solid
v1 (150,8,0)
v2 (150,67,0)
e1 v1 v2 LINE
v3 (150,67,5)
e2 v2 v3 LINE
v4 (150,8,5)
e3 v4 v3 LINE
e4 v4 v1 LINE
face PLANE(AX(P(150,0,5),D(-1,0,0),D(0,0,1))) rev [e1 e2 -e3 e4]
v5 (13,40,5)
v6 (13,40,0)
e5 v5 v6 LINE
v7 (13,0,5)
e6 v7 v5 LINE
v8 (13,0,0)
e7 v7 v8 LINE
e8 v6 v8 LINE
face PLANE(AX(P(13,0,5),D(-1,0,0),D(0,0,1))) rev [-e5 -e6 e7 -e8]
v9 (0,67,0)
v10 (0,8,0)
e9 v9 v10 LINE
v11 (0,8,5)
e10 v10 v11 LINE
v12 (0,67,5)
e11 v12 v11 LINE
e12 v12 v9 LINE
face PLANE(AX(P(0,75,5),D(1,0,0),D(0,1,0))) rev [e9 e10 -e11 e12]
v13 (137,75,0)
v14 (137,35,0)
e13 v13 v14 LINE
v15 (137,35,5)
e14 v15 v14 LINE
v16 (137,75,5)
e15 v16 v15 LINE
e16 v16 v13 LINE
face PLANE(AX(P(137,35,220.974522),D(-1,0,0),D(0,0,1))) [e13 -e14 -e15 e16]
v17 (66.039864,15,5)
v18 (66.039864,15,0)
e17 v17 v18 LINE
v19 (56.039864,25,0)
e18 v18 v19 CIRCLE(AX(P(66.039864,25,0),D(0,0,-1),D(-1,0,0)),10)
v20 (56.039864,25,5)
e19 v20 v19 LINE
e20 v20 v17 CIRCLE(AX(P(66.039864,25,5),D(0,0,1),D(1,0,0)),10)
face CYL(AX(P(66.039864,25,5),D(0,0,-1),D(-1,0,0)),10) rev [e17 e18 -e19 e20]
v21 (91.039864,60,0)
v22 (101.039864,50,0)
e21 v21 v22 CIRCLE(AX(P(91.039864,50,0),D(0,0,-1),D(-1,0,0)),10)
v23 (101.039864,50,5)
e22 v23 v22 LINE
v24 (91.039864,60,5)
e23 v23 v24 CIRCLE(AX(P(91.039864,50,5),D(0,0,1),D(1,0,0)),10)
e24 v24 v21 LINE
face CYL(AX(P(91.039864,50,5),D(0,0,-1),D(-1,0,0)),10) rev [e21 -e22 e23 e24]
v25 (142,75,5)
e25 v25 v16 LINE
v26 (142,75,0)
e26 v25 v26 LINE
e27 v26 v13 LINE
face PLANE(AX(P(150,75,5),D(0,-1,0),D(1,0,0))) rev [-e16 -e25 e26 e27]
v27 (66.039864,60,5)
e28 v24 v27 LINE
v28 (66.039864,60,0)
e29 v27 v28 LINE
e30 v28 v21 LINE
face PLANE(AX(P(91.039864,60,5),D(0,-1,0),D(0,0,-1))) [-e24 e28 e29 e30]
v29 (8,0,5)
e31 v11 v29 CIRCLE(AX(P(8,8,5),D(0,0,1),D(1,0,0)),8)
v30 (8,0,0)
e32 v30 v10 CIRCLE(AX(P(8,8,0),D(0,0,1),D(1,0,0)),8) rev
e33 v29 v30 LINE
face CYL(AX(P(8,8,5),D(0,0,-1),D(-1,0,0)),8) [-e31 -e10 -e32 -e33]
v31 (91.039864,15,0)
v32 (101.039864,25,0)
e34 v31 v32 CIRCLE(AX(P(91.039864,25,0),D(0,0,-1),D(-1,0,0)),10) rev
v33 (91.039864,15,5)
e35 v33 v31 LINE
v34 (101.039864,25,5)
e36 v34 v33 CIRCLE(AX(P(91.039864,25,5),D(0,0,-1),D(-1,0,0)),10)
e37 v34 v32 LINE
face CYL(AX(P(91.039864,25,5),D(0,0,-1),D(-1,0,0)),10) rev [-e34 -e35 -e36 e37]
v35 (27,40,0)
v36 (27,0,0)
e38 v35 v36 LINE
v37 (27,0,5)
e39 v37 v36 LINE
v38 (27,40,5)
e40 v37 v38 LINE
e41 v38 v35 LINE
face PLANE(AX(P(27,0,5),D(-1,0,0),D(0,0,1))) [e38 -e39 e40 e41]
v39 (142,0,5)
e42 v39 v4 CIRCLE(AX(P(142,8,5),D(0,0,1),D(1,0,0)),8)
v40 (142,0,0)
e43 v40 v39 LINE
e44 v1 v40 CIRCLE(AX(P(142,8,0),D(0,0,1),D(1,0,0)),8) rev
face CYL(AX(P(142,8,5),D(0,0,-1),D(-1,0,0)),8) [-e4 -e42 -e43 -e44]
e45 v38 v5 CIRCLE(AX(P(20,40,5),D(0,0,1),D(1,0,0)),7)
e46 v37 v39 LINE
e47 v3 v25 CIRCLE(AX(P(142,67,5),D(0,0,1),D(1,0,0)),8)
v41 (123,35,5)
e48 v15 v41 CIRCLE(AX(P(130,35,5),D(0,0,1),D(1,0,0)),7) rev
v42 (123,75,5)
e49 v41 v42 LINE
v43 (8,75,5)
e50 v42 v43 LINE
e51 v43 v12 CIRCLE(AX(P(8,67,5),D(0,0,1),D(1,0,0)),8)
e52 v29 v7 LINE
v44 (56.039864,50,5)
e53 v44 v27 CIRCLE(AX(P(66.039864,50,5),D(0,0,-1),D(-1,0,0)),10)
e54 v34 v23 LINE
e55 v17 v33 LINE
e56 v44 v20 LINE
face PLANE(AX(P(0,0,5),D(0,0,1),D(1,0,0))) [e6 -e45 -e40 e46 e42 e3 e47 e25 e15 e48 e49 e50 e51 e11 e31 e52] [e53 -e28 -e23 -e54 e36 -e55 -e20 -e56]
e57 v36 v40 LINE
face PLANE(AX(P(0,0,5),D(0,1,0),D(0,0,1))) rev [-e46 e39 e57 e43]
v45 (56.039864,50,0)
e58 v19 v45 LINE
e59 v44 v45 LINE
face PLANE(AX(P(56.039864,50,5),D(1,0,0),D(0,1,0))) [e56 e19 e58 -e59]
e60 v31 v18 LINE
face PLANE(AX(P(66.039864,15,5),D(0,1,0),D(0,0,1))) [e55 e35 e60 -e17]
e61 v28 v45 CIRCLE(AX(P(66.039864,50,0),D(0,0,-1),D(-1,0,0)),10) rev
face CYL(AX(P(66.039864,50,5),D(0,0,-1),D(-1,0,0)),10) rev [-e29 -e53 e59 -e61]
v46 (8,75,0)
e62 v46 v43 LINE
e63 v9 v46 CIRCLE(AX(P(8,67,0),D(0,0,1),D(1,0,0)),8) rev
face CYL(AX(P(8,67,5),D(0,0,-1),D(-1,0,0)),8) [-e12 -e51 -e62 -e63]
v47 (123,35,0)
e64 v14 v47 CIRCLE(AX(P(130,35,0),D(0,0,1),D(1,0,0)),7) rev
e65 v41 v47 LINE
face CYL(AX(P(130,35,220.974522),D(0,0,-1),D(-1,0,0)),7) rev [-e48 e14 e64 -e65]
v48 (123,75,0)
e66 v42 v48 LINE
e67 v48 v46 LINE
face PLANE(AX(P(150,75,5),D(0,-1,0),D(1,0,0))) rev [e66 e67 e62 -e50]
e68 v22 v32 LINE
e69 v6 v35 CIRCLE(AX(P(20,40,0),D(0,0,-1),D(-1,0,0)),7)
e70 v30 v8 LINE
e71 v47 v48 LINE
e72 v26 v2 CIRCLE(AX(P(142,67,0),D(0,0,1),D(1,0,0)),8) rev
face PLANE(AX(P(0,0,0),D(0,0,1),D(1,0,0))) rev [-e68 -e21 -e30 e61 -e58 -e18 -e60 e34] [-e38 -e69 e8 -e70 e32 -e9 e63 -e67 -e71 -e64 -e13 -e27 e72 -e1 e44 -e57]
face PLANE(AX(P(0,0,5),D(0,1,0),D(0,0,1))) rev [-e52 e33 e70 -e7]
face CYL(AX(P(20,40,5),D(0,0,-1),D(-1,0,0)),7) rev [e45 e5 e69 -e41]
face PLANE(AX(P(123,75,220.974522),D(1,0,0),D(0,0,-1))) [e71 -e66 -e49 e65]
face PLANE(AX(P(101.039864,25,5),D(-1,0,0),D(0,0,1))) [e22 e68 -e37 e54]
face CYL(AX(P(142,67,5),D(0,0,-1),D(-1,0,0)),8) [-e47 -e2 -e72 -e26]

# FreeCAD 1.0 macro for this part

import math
import FreeCAD as App
import Part
import Sketcher


def edges_at(feature, points):
    """Names of the edges that pass closest to the given points."""
    edges = feature.Shape.Edges
    near = lambda p: min(range(len(edges)), key=lambda i: edges[i].distToShape(Part.Vertex(*p))[0])
    return sorted({f"Edge{near(p) + 1}" for p in points})


def add_polygon(sketch, points):
    """Adds a closed chain of lines whose ends are joined by coincident constraints."""
    first, n = sketch.GeometryCount, len(points)
    for a, b in zip(points, points[1:] + points[:1]):
        sketch.addGeometry(Part.LineSegment(App.Vector(*a, 0), App.Vector(*b, 0)), False)
    for i in range(n):
        sketch.addConstraint(Sketcher.Constraint("Coincident", first + i, 2, first + (i + 1) % n, 1))

doc = App.newDocument("Part")
body = doc.addObject("PartDesign::Body", "Body")

sketch1 = body.newObject("Sketcher::SketchObject", "Sketch")
sketch1.AttachmentSupport = (doc.getObject("XY_Plane"), [""])
sketch1.MapMode = "FlatFace"
add_polygon(sketch1, [(0, 75), (0, 0), (150, 0), (150, 75)])
sketch1.addConstraint([
    Sketcher.Constraint("Vertical", 0),
    Sketcher.Constraint("Horizontal", 1),
    Sketcher.Constraint("Vertical", 2),
    Sketcher.Constraint("Horizontal", 3),
    Sketcher.Constraint("Coincident", 0, 2, -1, 1),
    Sketcher.Constraint("DistanceX", 1, 1, 1, 2, 150.0),
    Sketcher.Constraint("DistanceY", 0, 2, 0, 1, 75.0),
])
pad1 = body.newObject("PartDesign::Pad", "Pad")
pad1.Profile = sketch1
pad1.Length = 5

sketch2 = body.newObject("Sketcher::SketchObject", "Sketch001")
sketch2.AttachmentSupport = (doc.getObject("XY_Plane"), [""])
sketch2.MapMode = "FlatFace"
sketch2.addGeometry([
    Part.LineSegment(App.Vector(56.039864, 50, 0), App.Vector(56.039864, 25, 0)),
    Part.ArcOfCircle(Part.Circle(App.Vector(66.039864, 25, 0), App.Vector(0, 0, 1), 10), math.radians(180), math.radians(270)),
    Part.LineSegment(App.Vector(66.039864, 15, 0), App.Vector(91.039864, 15, 0)),
    Part.ArcOfCircle(Part.Circle(App.Vector(91.039864, 25, 0), App.Vector(0, 0, 1), 10), math.radians(-90), math.radians(0)),
    Part.LineSegment(App.Vector(101.039864, 25, 0), App.Vector(101.039864, 50, 0)),
    Part.ArcOfCircle(Part.Circle(App.Vector(91.039864, 50, 0), App.Vector(0, 0, 1), 10), math.radians(0), math.radians(90)),
    Part.LineSegment(App.Vector(91.039864, 60, 0), App.Vector(66.039864, 60, 0)),
    Part.ArcOfCircle(Part.Circle(App.Vector(66.039864, 50, 0), App.Vector(0, 0, 1), 10), math.radians(90), math.radians(180)),
    Part.LineSegment(App.Vector(13, 40, 0), App.Vector(13, 0, 0)),
    Part.ArcOfCircle(Part.Circle(App.Vector(20, 0, 0), App.Vector(0, 0, 1), 7), math.radians(180), math.radians(360)),
    Part.LineSegment(App.Vector(27, 0, 0), App.Vector(27, 40, 0)),
    Part.ArcOfCircle(Part.Circle(App.Vector(20, 40, 0), App.Vector(0, 0, 1), 7), math.radians(0), math.radians(180)),
], False)
sketch2.addConstraint([
    Sketcher.Constraint("Tangent", 0, 2, 1, 1),
    Sketcher.Constraint("Tangent", 1, 2, 2, 1),
    Sketcher.Constraint("Tangent", 2, 2, 3, 1),
    Sketcher.Constraint("Tangent", 3, 2, 4, 1),
    Sketcher.Constraint("Tangent", 4, 2, 5, 1),
    Sketcher.Constraint("Tangent", 5, 2, 6, 1),
    Sketcher.Constraint("Tangent", 6, 2, 7, 1),
    Sketcher.Constraint("Tangent", 7, 2, 0, 1),
    Sketcher.Constraint("Tangent", 8, 2, 9, 1),
    Sketcher.Constraint("Tangent", 9, 2, 10, 1),
    Sketcher.Constraint("Tangent", 10, 2, 11, 1),
    Sketcher.Constraint("Tangent", 11, 2, 8, 1),
    Sketcher.Constraint("Vertical", 0),
    Sketcher.Constraint("Horizontal", 2),
    Sketcher.Constraint("Vertical", 4),
    Sketcher.Constraint("Horizontal", 6),
    Sketcher.Constraint("Vertical", 8),
    Sketcher.Constraint("Vertical", 10),
    Sketcher.Constraint("Equal", 1, 3),
    Sketcher.Constraint("Equal", 3, 5),
    Sketcher.Constraint("Equal", 5, 7),
    Sketcher.Constraint("PointOnObject", 9, 3, -1),
    Sketcher.Constraint("Equal", 6, 0),
    Sketcher.Constraint("Radius", 1, 10.0),
    Sketcher.Constraint("Radius", 9, 7.0),
    Sketcher.Constraint("DistanceX", 2, 1, 2, 2, 25.0),
    Sketcher.Constraint("DistanceY", 8, 2, 8, 1, 40.0),
    Sketcher.Constraint("DistanceY", -1, 1, 1, 3, 25.0),
    Sketcher.Constraint("DistanceX", -1, 1, 9, 3, 20.0),
    Sketcher.Constraint("DistanceX", -1, 1, 1, 3, 66.039864),
])
pocket1 = body.newObject("PartDesign::Pocket", "Pocket")
pocket1.Profile = sketch2
pocket1.Type = "ThroughAll"
pocket1.Midplane = True

sketch3 = body.newObject("Sketcher::SketchObject", "Sketch002")
sketch3.AttachmentSupport = (doc.getObject("XY_Plane"), [""])
sketch3.MapMode = "FlatFace"
sketch3.AttachmentOffset = App.Placement(App.Vector(0, 0, 5), App.Rotation())
sketch3.addGeometry([
    Part.ArcOfCircle(Part.Circle(App.Vector(130, 35, 0), App.Vector(0, 0, 1), 7), math.radians(180), math.radians(360)),
    Part.LineSegment(App.Vector(137, 35, 0), App.Vector(137, 1042.114721, 0)),
    Part.LineSegment(App.Vector(137, 1042.114721, 0), App.Vector(123, 1042.114721, 0)),
    Part.LineSegment(App.Vector(123, 1042.114721, 0), App.Vector(123, 35, 0)),
], False)
sketch3.addConstraint([
    Sketcher.Constraint("Tangent", 0, 2, 1, 1),
    Sketcher.Constraint("Coincident", 1, 2, 2, 1),
    Sketcher.Constraint("Coincident", 2, 2, 3, 1),
    Sketcher.Constraint("Tangent", 3, 2, 0, 1),
    Sketcher.Constraint("Vertical", 1),
    Sketcher.Constraint("Horizontal", 2),
    Sketcher.Constraint("Vertical", 3),
    Sketcher.Constraint("Radius", 0, 7.0),
    Sketcher.Constraint("DistanceX", -1, 1, 0, 3, 130.0),
    Sketcher.Constraint("DistanceY", -1, 1, 0, 3, 35.0),
    Sketcher.Constraint("DistanceY", 1, 1, 1, 2, 1007.114721),
])
pocket2 = body.newObject("PartDesign::Pocket", "Pocket001")
pocket2.Profile = sketch3
pocket2.Type = "ThroughAll"
pocket2.Midplane = True
doc.recompute()

fillet = body.newObject("PartDesign::Fillet", "Fillet")
fillet.Base = (pocket2, edges_at(pocket2, [(150, 75, 2.5)]))
fillet.Radius = 8
doc.recompute()

fillet2 = body.newObject("PartDesign::Fillet", "Fillet001")
fillet2.Base = (fillet, edges_at(fillet, [(0, 0, 2.5)]))
fillet2.Radius = 8
doc.recompute()

fillet3 = body.newObject("PartDesign::Fillet", "Fillet002")
fillet3.Base = (fillet2, edges_at(fillet2, [(150, 0, 2.5)]))
fillet3.Radius = 8
doc.recompute()

fillet4 = body.newObject("PartDesign::Fillet", "Fillet003")
fillet4.Base = (fillet3, edges_at(fillet3, [(0, 75, 2.5)]))
fillet4.Radius = 8

doc.recompute()
